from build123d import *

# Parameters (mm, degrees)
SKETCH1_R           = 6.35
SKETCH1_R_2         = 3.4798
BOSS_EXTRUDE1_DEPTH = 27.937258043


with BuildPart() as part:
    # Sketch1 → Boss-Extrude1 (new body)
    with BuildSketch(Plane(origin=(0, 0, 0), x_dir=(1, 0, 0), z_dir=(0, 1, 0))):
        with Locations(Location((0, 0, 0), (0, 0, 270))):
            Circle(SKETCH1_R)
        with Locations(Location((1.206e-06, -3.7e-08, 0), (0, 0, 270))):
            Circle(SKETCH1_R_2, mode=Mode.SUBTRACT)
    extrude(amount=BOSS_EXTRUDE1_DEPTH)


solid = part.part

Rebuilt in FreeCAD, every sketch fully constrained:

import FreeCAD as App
import Part
import Sketcher
from FreeCAD import Vector
Q = App.Units.Quantity

doc = App.newDocument("Part")
body = doc.addObject("PartDesign::Body", "Body")

sketch1 = body.newObject("Sketcher::SketchObject", "Sketch")
sketch1.AttachmentSupport = (doc.getObject("XZ_Plane"), [""])
sketch1.MapMode = "FlatFace"
sketch1.addGeometry([
    Part.Circle(Vector(0, 0, 0), Vector(0, 0, 1), 6.3),
    Part.Circle(Vector(0, 0, 0), Vector(0, 0, 1), 3.5),
], False)
sketch1.addConstraint([
    Sketcher.Constraint("Coincident", 0, 3, -1, 1),
    Sketcher.Constraint("Coincident", 1, 3, -1, 1),
    Sketcher.Constraint("Diameter", 0, Q("0.5 in")),
    Sketcher.Constraint("Diameter", 1, Q("0.274 in")),
])
pad1 = body.newObject("PartDesign::Pad", "Pad")
pad1.Profile = sketch1
pad1.Length = 27.937258
pad1.Reversed = True

doc.recompute()
